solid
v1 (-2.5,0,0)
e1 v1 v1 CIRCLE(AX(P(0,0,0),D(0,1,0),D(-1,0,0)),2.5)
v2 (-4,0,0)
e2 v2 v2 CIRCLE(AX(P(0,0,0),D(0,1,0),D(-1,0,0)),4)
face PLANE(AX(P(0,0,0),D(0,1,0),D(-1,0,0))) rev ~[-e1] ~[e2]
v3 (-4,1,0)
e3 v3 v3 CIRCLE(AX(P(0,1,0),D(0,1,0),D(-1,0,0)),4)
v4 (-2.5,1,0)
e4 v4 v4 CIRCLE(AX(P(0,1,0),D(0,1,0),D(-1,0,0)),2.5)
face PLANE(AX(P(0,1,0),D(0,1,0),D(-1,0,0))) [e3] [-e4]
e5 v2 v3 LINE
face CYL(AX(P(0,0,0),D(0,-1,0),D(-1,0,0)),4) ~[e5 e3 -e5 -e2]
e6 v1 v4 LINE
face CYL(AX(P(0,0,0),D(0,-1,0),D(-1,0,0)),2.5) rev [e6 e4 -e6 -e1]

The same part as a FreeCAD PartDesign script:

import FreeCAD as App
import Part
import Sketcher

doc = App.newDocument("Part")
body = doc.addObject("PartDesign::Body", "Body")

# Sketch on XZ plane
sketch1 = body.newObject("Sketcher::SketchObject", "Sketch")
sketch1.AttachmentSupport = (doc.getObject("XZ_Plane"), [""])
sketch1.MapMode = "FlatFace"
sketch1.addGeometry([
    Part.Circle(App.Vector(0, 0, 0), App.Vector(0, 0, 1), 4),
    Part.Circle(App.Vector(0, 0, 0), App.Vector(0, 0, 1), 2.5),
], False)
sketch1.addConstraint([
    Sketcher.Constraint("Coincident", 0, 3, -1, 1),
    Sketcher.Constraint("Coincident", 1, 3, -1, 1),
    Sketcher.Constraint("Diameter", 0, 8.0),
    Sketcher.Constraint("Diameter", 1, 5.0),
])
pad1 = body.newObject("PartDesign::Pad", "Pad")
pad1.Profile = sketch1
pad1.Length = 1
pad1.Reversed = True

doc.recompute()
